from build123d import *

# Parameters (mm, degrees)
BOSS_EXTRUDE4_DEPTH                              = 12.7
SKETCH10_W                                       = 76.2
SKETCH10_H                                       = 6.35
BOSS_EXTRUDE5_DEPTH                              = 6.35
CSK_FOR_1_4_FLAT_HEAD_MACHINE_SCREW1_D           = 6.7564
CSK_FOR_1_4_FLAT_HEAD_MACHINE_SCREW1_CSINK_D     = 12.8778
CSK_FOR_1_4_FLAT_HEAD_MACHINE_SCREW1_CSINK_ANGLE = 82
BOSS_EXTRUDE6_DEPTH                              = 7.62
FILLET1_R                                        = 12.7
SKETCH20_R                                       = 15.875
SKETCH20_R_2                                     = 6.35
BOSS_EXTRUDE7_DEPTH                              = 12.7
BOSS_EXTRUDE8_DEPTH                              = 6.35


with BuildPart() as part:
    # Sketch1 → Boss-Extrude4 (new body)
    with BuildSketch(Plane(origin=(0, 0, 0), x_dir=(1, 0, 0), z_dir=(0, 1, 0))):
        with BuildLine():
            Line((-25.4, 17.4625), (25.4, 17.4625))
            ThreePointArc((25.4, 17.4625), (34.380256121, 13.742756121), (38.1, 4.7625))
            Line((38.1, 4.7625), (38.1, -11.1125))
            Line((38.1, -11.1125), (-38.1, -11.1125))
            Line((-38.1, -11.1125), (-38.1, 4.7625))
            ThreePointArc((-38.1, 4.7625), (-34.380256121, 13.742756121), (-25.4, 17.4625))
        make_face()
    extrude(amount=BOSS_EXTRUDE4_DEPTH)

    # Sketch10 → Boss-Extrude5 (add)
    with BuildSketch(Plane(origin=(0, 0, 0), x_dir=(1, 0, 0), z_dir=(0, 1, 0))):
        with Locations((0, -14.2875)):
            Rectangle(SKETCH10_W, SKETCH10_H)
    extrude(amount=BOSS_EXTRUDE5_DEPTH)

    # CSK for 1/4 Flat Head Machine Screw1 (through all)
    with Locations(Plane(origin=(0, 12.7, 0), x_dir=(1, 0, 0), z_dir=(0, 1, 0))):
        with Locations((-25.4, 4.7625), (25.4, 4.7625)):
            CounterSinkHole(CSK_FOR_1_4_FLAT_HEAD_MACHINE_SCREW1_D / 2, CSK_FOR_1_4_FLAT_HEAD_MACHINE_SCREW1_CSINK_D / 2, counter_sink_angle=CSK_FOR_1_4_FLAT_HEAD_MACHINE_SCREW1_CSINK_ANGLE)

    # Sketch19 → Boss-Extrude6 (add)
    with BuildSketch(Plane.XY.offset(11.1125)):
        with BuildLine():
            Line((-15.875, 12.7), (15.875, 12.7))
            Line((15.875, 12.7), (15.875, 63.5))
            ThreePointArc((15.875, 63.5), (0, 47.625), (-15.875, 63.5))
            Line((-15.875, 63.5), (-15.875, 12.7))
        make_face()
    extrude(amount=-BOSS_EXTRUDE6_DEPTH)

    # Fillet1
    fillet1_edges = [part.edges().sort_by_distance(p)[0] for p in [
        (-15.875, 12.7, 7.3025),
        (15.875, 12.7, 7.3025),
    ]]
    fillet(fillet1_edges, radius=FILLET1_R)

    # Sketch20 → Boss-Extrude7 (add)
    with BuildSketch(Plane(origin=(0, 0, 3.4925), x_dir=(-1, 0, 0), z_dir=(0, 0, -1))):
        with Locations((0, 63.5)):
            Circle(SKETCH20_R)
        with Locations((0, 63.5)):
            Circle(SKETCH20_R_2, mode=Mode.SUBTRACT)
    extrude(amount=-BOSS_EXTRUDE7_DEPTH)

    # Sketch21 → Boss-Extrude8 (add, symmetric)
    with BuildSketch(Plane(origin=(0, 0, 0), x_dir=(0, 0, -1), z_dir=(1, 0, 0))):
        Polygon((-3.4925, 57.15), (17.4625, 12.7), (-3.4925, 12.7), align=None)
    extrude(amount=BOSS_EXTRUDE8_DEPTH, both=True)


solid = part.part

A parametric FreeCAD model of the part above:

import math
import FreeCAD as App
import Part
import Sketcher
Q = App.Units.Quantity


def edges_at(feature, points):
    """Names of the edges that pass closest to the given points."""
    edges = feature.Shape.Edges
    near = lambda p: min(range(len(edges)), key=lambda i: edges[i].distToShape(Part.Vertex(*p))[0])
    return sorted({f"Edge{near(p) + 1}" for p in points})

doc = App.newDocument("Part")
body = doc.addObject("PartDesign::Body", "Body")

sketch1 = body.newObject("Sketcher::SketchObject", "Sketch")
sketch1.AttachmentSupport = (doc.getObject("XZ_Plane"), [""])
sketch1.MapMode = "FlatFace"
sketch1.addGeometry(Part.LineSegment(App.Vector(25.4, -17.4625, 0), App.Vector(-25.4, -17.4625, 0)), False)
sketch1.addGeometry(Part.ArcOfCircle(Part.Circle(App.Vector(-25.4, -4.7625, 0), App.Vector(0, 0, 1), 12.7), math.radians(180), math.radians(270)), False)
sketch1.addGeometry(Part.LineSegment(App.Vector(-38.1, -4.7625, 0), App.Vector(-38.1, 11.1125, 0)), False)
sketch1.addGeometry(Part.LineSegment(App.Vector(-38.1, 11.1125, 0), App.Vector(38.1, 11.1125, 0)), False)
sketch1.addGeometry(Part.LineSegment(App.Vector(38.1, 11.1125, 0), App.Vector(38.1, -4.7625, 0)), False)
sketch1.addGeometry(Part.ArcOfCircle(Part.Circle(App.Vector(25.4, -4.7625, 0), App.Vector(0, 0, 1), 12.7), math.radians(-90), math.radians(0)), False)
sketch1.addConstraint(Sketcher.Constraint("Tangent", 0, 2, 1, 2))
sketch1.addConstraint(Sketcher.Constraint("Tangent", 1, 1, 2, 1))
sketch1.addConstraint(Sketcher.Constraint("Coincident", 2, 2, 3, 1))
sketch1.addConstraint(Sketcher.Constraint("Coincident", 3, 2, 4, 1))
sketch1.addConstraint(Sketcher.Constraint("Tangent", 4, 2, 5, 2))
sketch1.addConstraint(Sketcher.Constraint("Tangent", 5, 1, 0, 1))
sketch1.addConstraint(Sketcher.Constraint("Horizontal", 0))
sketch1.addConstraint(Sketcher.Constraint("Vertical", 2))
sketch1.addConstraint(Sketcher.Constraint("Horizontal", 3))
sketch1.addConstraint(Sketcher.Constraint("Vertical", 4))
sketch1.addConstraint(Sketcher.Constraint("Equal", 1, 5))
sketch1.addConstraint(Sketcher.Constraint("Radius", 1, Q("0.5 in")))
sketch1.addConstraint(Sketcher.Constraint("DistanceX", 0, 2, 0, 1, Q("2 in")))
sketch1.addConstraint(Sketcher.Constraint("DistanceX", 1, 3, -1, 1, Q("1 in")))
sketch1.addConstraint(Sketcher.Constraint("DistanceY", 2, 1, 2, 2, Q("0.625 in")))
sketch1.addConstraint(Sketcher.Constraint("DistanceY", 1, 3, -1, 1, Q("0.1875 in")))
pad1 = body.newObject("PartDesign::Pad", "Pad")
pad1.Profile = sketch1
pad1.Length = Q("0.5 in")
pad1.Reversed = True

sketch2 = body.newObject("Sketcher::SketchObject", "Sketch001")
sketch2.AttachmentSupport = (doc.getObject("XZ_Plane"), [""])
sketch2.MapMode = "FlatFace"
sketch2.addGeometry(Part.LineSegment(App.Vector(-38.1, 11.1125, 0), App.Vector(-38.1, 17.4625, 0)), False)
sketch2.addGeometry(Part.LineSegment(App.Vector(-38.1, 17.4625, 0), App.Vector(38.1, 17.4625, 0)), False)
sketch2.addGeometry(Part.LineSegment(App.Vector(38.1, 17.4625, 0), App.Vector(38.1, 11.1125, 0)), False)
sketch2.addGeometry(Part.LineSegment(App.Vector(38.1, 11.1125, 0), App.Vector(-38.1, 11.1125, 0)), False)
sketch2.addConstraint(Sketcher.Constraint("Coincident", 0, 2, 1, 1))
sketch2.addConstraint(Sketcher.Constraint("Coincident", 1, 2, 2, 1))
sketch2.addConstraint(Sketcher.Constraint("Coincident", 2, 2, 3, 1))
sketch2.addConstraint(Sketcher.Constraint("Coincident", 3, 2, 0, 1))
sketch2.addConstraint(Sketcher.Constraint("Vertical", 0))
sketch2.addConstraint(Sketcher.Constraint("Horizontal", 1))
sketch2.addConstraint(Sketcher.Constraint("Vertical", 2))
sketch2.addConstraint(Sketcher.Constraint("Horizontal", 3))
sketch2.addConstraint(Sketcher.Constraint("DistanceX", 1, 1, 1, 2, Q("3 in")))
sketch2.addConstraint(Sketcher.Constraint("DistanceY", 0, 1, 0, 2, Q("0.25 in")))
sketch2.addConstraint(Sketcher.Constraint("DistanceX", 0, 2, -1, 1, Q("1.5 in")))
sketch2.addConstraint(Sketcher.Constraint("DistanceY", -1, 1, 0, 2, Q("0.6875 in")))
pad2 = body.newObject("PartDesign::Pad", "Pad001")
pad2.Profile = sketch2
pad2.Length = Q("0.25 in")
pad2.Reversed = True

sketch3 = body.newObject("Sketcher::SketchObject", "Sketch002")
sketch3.AttachmentSupport = (doc.getObject("XZ_Plane"), [""])
sketch3.MapMode = "FlatFace"
sketch3.AttachmentOffset = App.Placement(App.Vector(0, 0, -0.5 * 25.4), App.Rotation())
sketch3.addGeometry(Part.Circle(App.Vector(-25.4, -4.7625, 0), App.Vector(0, 0, 1), 3.3782), False)
sketch3.addGeometry(Part.Circle(App.Vector(25.4, -4.7625, 0), App.Vector(0, 0, 1), 3.3782), False)
sketch3.addConstraint(Sketcher.Constraint("Equal", 0, 1))
sketch3.addConstraint(Sketcher.Constraint("Symmetric", 0, 3, 1, 3, -2))
sketch3.addConstraint(Sketcher.Constraint("Diameter", 0, Q("0.266 in")))
sketch3.addConstraint(Sketcher.Constraint("DistanceX", 0, 3, -1, 1, Q("1 in")))
sketch3.addConstraint(Sketcher.Constraint("DistanceY", 0, 3, -1, 1, Q("0.1875 in")))
doc.recompute()
hole = body.newObject("PartDesign::Hole", "Hole")
hole.Profile = sketch3
hole.ThreadType = "None"
hole.Diameter = Q("0.266 in")
hole.DepthType = "ThroughAll"
hole.HoleCutType = "Countersink"
hole.HoleCutDiameter = Q("0.507 in")
hole.HoleCutCountersinkAngle = 82
hole.Reversed = True

sketch4 = body.newObject("Sketcher::SketchObject", "Sketch003")
sketch4.AttachmentSupport = (doc.getObject("XY_Plane"), [""])
sketch4.MapMode = "FlatFace"
sketch4.AttachmentOffset = App.Placement(App.Vector(0, 0, 0.4375 * 25.4), App.Rotation())
sketch4.addGeometry(Part.LineSegment(App.Vector(-15.875, 12.7, 0), App.Vector(15.875, 12.7, 0)), False)
sketch4.addGeometry(Part.LineSegment(App.Vector(15.875, 12.7, 0), App.Vector(15.875, 63.5, 0)), False)
sketch4.addGeometry(Part.ArcOfCircle(Part.Circle(App.Vector(0, 63.5, 0), App.Vector(0, 0, 1), 15.875), math.radians(180), math.radians(360)), False)
sketch4.addGeometry(Part.LineSegment(App.Vector(-15.875, 63.5, 0), App.Vector(-15.875, 12.7, 0)), False)
sketch4.addConstraint(Sketcher.Constraint("Coincident", 0, 2, 1, 1))
sketch4.addConstraint(Sketcher.Constraint("Tangent", 1, 2, 2, 2))
sketch4.addConstraint(Sketcher.Constraint("Tangent", 2, 1, 3, 1))
sketch4.addConstraint(Sketcher.Constraint("Coincident", 3, 2, 0, 1))
sketch4.addConstraint(Sketcher.Constraint("Horizontal", 0))
sketch4.addConstraint(Sketcher.Constraint("Vertical", 1))
sketch4.addConstraint(Sketcher.Constraint("Vertical", 3))
sketch4.addConstraint(Sketcher.Constraint("PointOnObject", 2, 3, -2))
sketch4.addConstraint(Sketcher.Constraint("DistanceY", 1, 1, 1, 2, Q("2 in")))
sketch4.addConstraint(Sketcher.Constraint("Radius", 2, Q("0.625 in")))
sketch4.addConstraint(Sketcher.Constraint("DistanceY", -1, 1, 2, 3, Q("2.5 in")))
pad3 = body.newObject("PartDesign::Pad", "Pad002")
pad3.Profile = sketch4
pad3.Length = Q("0.3 in")
pad3.Reversed = True
doc.recompute()

fillet = body.newObject("PartDesign::Fillet", "Fillet")
fillet.Base = (pad3, edges_at(pad3, [(-15.875, 12.7, 7.303), (15.875, 12.7, 7.303)]))
fillet.Radius = Q("0.5 in")

sketch5 = body.newObject("Sketcher::SketchObject", "Sketch004")
sketch5.AttachmentSupport = (doc.getObject("XY_Plane"), [""])
sketch5.MapMode = "FlatFace"
sketch5.AttachmentOffset = App.Placement(App.Vector(0, 0, 0.1375 * 25.4), App.Rotation())
sketch5.addGeometry(Part.Circle(App.Vector(0, 63.5, 0), App.Vector(0, 0, 1), 15.875), False)
sketch5.addGeometry(Part.Circle(App.Vector(0, 63.5, 0), App.Vector(0, 0, 1), 6.35), False)
sketch5.addConstraint(Sketcher.Constraint("Coincident", 1, 3, 0, 3))
sketch5.addConstraint(Sketcher.Constraint("PointOnObject", 0, 3, -2))
sketch5.addConstraint(Sketcher.Constraint("Diameter", 1, Q("0.5 in")))
sketch5.addConstraint(Sketcher.Constraint("Diameter", 0, Q("1.25 in")))
sketch5.addConstraint(Sketcher.Constraint("DistanceY", -1, 1, 0, 3, Q("2.5 in")))
pad4 = body.newObject("PartDesign::Pad", "Pad003")
pad4.Profile = sketch5
pad4.Length = Q("0.5 in")

sketch6 = body.newObject("Sketcher::SketchObject", "Sketch005")
sketch6.AttachmentSupport = (doc.getObject("YZ_Plane"), [""])
sketch6.MapMode = "FlatFace"
sketch6.addGeometry(Part.LineSegment(App.Vector(12.7, -17.4625, 0), App.Vector(57.15, 3.4925, 0)), False)
sketch6.addGeometry(Part.LineSegment(App.Vector(57.15, 3.4925, 0), App.Vector(12.7, 3.4925, 0)), False)
sketch6.addGeometry(Part.LineSegment(App.Vector(12.7, 3.4925, 0), App.Vector(12.7, -17.4625, 0)), False)
sketch6.addConstraint(Sketcher.Constraint("Coincident", 0, 2, 1, 1))
sketch6.addConstraint(Sketcher.Constraint("Coincident", 1, 2, 2, 1))
sketch6.addConstraint(Sketcher.Constraint("Coincident", 2, 2, 0, 1))
sketch6.addConstraint(Sketcher.Constraint("Horizontal", 1))
sketch6.addConstraint(Sketcher.Constraint("Vertical", 2))
sketch6.addConstraint(Sketcher.Constraint("DistanceX", 1, 2, 1, 1, Q("1.75 in")))
sketch6.addConstraint(Sketcher.Constraint("DistanceX", -1, 1, 1, 2, Q("0.5 in")))
sketch6.addConstraint(Sketcher.Constraint("DistanceY", 2, 2, 2, 1, Q("0.825 in")))
sketch6.addConstraint(Sketcher.Constraint("DistanceY", 2, 2, -1, 1, Q("0.6875 in")))
pad5 = body.newObject("PartDesign::Pad", "Pad004")
pad5.Profile = sketch6
pad5.Length = Q("0.5 in")
pad5.Midplane = True

doc.recompute()
